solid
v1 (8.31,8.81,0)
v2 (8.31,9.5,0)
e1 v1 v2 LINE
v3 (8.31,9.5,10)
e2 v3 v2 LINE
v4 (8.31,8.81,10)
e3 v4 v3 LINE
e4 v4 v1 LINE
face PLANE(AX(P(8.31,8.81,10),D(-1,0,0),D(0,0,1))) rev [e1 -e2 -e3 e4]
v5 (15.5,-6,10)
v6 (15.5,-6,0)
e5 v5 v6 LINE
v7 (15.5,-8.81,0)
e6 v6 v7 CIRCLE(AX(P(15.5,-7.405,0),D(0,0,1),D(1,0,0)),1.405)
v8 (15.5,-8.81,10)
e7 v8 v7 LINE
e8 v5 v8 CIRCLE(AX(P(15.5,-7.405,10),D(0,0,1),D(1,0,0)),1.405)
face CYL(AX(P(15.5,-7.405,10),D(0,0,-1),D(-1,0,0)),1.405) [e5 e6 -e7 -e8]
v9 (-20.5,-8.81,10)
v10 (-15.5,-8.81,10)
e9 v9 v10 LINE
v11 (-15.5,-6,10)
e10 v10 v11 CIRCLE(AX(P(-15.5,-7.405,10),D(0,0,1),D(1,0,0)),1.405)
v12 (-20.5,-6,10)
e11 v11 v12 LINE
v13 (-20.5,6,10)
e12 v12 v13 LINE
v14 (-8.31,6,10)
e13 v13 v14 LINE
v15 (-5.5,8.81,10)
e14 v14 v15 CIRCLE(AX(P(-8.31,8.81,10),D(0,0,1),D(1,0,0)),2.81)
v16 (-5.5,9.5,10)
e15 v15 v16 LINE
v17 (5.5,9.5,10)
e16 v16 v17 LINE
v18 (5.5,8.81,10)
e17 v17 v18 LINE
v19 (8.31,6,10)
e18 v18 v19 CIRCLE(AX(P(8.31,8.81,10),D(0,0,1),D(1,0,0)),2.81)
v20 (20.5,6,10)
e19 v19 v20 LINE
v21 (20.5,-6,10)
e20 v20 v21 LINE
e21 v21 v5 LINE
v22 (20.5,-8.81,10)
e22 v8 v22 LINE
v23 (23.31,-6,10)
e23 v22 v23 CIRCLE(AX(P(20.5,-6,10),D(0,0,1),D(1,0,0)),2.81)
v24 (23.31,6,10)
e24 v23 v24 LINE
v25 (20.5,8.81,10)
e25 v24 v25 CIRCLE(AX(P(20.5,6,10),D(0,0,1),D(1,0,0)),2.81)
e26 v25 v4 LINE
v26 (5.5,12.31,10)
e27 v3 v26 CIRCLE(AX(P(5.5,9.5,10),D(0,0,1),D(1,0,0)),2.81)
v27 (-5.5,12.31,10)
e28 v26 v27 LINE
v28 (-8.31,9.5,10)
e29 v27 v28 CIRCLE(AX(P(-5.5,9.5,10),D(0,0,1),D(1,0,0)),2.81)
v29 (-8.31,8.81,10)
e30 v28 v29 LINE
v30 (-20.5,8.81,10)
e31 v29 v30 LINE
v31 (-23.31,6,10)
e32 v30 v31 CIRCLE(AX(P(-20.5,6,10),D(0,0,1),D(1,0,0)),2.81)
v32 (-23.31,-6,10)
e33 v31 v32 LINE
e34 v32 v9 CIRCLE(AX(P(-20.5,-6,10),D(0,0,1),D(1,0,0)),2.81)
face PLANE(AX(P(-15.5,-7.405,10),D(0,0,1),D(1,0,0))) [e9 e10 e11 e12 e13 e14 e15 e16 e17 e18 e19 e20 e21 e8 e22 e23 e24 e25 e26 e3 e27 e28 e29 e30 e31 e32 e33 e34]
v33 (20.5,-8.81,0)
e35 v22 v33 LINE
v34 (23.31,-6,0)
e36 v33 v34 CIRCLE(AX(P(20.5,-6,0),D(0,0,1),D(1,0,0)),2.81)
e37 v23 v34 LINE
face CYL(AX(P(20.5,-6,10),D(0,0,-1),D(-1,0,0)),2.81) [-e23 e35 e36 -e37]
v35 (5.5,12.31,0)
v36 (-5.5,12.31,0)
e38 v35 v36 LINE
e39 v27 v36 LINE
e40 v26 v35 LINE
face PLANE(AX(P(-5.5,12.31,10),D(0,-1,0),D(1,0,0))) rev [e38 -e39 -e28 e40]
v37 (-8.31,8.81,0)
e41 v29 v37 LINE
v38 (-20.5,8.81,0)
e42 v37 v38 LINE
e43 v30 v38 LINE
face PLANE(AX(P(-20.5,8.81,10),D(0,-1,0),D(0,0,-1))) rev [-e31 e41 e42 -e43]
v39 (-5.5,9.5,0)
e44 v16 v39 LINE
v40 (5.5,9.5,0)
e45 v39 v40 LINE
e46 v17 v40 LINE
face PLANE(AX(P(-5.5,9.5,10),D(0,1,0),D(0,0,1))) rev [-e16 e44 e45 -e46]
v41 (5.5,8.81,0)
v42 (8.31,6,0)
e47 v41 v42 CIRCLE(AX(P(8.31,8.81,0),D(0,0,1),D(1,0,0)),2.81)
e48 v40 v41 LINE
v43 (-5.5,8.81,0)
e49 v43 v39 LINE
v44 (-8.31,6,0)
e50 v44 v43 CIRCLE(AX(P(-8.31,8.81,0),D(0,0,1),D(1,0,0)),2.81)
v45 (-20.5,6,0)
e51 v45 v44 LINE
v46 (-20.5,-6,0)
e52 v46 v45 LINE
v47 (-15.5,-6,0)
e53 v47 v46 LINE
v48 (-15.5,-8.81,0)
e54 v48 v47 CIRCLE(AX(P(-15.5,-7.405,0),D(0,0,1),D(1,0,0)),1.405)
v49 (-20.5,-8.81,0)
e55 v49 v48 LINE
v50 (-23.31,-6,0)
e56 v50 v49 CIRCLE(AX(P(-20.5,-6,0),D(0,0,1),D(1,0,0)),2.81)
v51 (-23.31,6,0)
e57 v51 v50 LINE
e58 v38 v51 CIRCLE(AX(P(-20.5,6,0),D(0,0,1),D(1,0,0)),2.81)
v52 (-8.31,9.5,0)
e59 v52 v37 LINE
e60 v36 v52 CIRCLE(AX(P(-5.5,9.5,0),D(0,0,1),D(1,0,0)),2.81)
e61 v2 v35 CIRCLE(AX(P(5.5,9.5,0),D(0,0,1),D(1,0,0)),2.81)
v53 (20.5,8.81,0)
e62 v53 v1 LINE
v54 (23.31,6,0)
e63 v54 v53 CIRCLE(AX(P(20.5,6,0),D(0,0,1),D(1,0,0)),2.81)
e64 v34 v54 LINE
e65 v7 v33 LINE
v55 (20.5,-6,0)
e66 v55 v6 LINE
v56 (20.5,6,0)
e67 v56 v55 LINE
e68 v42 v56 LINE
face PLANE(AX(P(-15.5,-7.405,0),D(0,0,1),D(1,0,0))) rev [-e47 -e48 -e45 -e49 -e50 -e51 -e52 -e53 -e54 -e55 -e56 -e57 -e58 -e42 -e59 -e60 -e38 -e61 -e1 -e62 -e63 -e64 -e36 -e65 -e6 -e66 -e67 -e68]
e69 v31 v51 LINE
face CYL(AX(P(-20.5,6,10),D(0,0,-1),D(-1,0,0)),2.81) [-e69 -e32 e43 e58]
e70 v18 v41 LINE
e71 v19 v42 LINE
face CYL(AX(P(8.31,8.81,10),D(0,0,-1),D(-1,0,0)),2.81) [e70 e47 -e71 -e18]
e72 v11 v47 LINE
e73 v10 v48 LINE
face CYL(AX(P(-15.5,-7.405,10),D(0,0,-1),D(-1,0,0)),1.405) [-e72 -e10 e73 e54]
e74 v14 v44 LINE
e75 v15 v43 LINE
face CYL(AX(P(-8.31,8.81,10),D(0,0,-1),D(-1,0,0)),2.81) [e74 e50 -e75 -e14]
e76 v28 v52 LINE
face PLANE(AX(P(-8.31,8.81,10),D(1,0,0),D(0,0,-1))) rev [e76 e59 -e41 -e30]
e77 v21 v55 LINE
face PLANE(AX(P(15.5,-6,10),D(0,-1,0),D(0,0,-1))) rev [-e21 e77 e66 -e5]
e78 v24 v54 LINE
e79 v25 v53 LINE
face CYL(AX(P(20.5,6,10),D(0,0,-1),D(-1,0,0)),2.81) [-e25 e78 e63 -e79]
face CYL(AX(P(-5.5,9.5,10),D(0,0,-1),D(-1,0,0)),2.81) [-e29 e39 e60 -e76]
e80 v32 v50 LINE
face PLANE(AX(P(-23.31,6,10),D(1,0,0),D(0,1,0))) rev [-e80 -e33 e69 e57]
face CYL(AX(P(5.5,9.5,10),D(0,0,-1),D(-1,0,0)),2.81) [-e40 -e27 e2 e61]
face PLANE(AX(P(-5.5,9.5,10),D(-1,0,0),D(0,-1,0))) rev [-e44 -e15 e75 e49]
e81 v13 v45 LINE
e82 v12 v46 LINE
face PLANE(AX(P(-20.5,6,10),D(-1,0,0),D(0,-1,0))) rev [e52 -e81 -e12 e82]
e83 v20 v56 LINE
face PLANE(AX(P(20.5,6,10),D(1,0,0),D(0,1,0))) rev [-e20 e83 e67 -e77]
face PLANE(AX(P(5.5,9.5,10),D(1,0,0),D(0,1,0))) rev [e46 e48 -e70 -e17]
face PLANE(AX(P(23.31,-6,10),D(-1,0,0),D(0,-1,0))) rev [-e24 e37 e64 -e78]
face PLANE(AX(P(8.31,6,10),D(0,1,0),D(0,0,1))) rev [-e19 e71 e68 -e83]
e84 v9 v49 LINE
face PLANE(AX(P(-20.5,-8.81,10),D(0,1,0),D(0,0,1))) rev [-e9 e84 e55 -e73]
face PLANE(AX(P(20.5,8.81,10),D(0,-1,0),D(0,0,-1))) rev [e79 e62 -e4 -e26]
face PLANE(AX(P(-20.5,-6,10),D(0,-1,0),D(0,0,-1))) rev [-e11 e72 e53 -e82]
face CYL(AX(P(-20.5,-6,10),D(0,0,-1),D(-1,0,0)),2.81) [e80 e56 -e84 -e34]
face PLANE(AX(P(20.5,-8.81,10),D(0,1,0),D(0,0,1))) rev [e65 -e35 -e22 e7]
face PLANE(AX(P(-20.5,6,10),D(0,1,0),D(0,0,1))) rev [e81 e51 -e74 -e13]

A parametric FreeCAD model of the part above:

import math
import FreeCAD as App
import Part
import Sketcher
from FreeCAD import Vector

doc = App.newDocument("Part")
body = doc.addObject("PartDesign::Body", "Body")

# Sketch on XY plane
sketch1 = body.newObject("Sketcher::SketchObject", "Sketch")
sketch1.AttachmentSupport = (doc.getObject("XY_Plane"), [""])
sketch1.MapMode = "FlatFace"
sketch1.addGeometry([
    Part.LineSegment(Vector(-15.5, -6, 0), Vector(-20.5, -6, 0)),  # 0
    Part.LineSegment(Vector(-20.5, -6, 0), Vector(-20.5, 6, 0)),  # 1
    Part.LineSegment(Vector(-20.5, 6, 0), Vector(-8.3, 6, 0)),  # 2
    Part.ArcOfCircle(Part.Circle(Vector(-8.3, 8.8, 0), Vector(0, 0, 1), 2.8), math.radians(-90), math.radians(0)),  # 3
    Part.LineSegment(Vector(-5.5, 8.8, 0), Vector(-5.5, 9.5, 0)),  # 4
    Part.LineSegment(Vector(-5.5, 9.5, 0), Vector(5.5, 9.5, 0)),  # 5
    Part.LineSegment(Vector(5.5, 9.5, 0), Vector(5.5, 8.8, 0)),  # 6
    Part.ArcOfCircle(Part.Circle(Vector(8.3, 8.8, 0), Vector(0, 0, 1), 2.8), math.radians(180), math.radians(270)),  # 7
    Part.LineSegment(Vector(8.3, 6, 0), Vector(20.5, 6, 0)),  # 8
    Part.LineSegment(Vector(20.5, 6, 0), Vector(20.5, -6, 0)),  # 9
    Part.LineSegment(Vector(20.5, -6, 0), Vector(15.5, -6, 0)),  # 10
    Part.ArcOfCircle(Part.Circle(Vector(15.5, -7.4, 0), Vector(0, 0, 1), 1.4), math.radians(90), math.radians(270)),  # 11
    Part.LineSegment(Vector(15.5, -8.8, 0), Vector(20.5, -8.8, 0)),  # 12
    Part.ArcOfCircle(Part.Circle(Vector(20.5, -6, 0), Vector(0, 0, 1), 2.8), math.radians(-90), math.radians(0)),  # 13
    Part.LineSegment(Vector(23.3, -6, 0), Vector(23.3, 6, 0)),  # 14
    Part.ArcOfCircle(Part.Circle(Vector(20.5, 6, 0), Vector(0, 0, 1), 2.8), math.radians(0), math.radians(90)),  # 15
    Part.LineSegment(Vector(20.5, 8.8, 0), Vector(8.3, 8.8, 0)),  # 16
    Part.LineSegment(Vector(8.3, 8.8, 0), Vector(8.3, 9.5, 0)),  # 17
    Part.ArcOfCircle(Part.Circle(Vector(5.5, 9.5, 0), Vector(0, 0, 1), 2.8), math.radians(0), math.radians(90)),  # 18
    Part.LineSegment(Vector(5.5, 12.3, 0), Vector(-5.5, 12.3, 0)),  # 19
    Part.ArcOfCircle(Part.Circle(Vector(-5.5, 9.5, 0), Vector(0, 0, 1), 2.8), math.radians(90), math.radians(180)),  # 20
    Part.LineSegment(Vector(-8.3, 9.5, 0), Vector(-8.3, 8.8, 0)),  # 21
    Part.LineSegment(Vector(-8.3, 8.8, 0), Vector(-20.5, 8.8, 0)),  # 22
    Part.ArcOfCircle(Part.Circle(Vector(-20.5, 6, 0), Vector(0, 0, 1), 2.8), math.radians(90), math.radians(180)),  # 23
    Part.LineSegment(Vector(-23.3, 6, 0), Vector(-23.3, -6, 0)),  # 24
    Part.ArcOfCircle(Part.Circle(Vector(-20.5, -6, 0), Vector(0, 0, 1), 2.8), math.radians(180), math.radians(270)),  # 25
    Part.LineSegment(Vector(-20.5, -8.8, 0), Vector(-15.5, -8.8, 0)),  # 26
    Part.ArcOfCircle(Part.Circle(Vector(-15.5, -7.4, 0), Vector(0, 0, 1), 1.4), math.radians(-90), math.radians(90)),  # 27
], False)
sketch1.addConstraint([
    Sketcher.Constraint("Coincident", 0, 2, 1, 1),
    Sketcher.Constraint("Coincident", 1, 2, 2, 1),
    Sketcher.Constraint("Tangent", 2, 2, 3, 1),
    Sketcher.Constraint("Tangent", 3, 2, 4, 1),
    Sketcher.Constraint("Coincident", 4, 2, 5, 1),
    Sketcher.Constraint("Coincident", 5, 2, 6, 1),
    Sketcher.Constraint("Tangent", 6, 2, 7, 1),
    Sketcher.Constraint("Tangent", 7, 2, 8, 1),
    Sketcher.Constraint("Coincident", 8, 2, 9, 1),
    Sketcher.Constraint("Coincident", 9, 2, 10, 1),
    Sketcher.Constraint("Tangent", 10, 2, 11, 1),
    Sketcher.Constraint("Tangent", 11, 2, 12, 1),
    Sketcher.Constraint("Tangent", 12, 2, 13, 1),
    Sketcher.Constraint("Tangent", 13, 2, 14, 1),
    Sketcher.Constraint("Tangent", 14, 2, 15, 1),
    Sketcher.Constraint("Tangent", 15, 2, 16, 1),
    Sketcher.Constraint("Coincident", 16, 2, 17, 1),
    Sketcher.Constraint("Tangent", 17, 2, 18, 1),
    Sketcher.Constraint("Tangent", 18, 2, 19, 1),
    Sketcher.Constraint("Tangent", 19, 2, 20, 1),
    Sketcher.Constraint("Tangent", 20, 2, 21, 1),
    Sketcher.Constraint("Coincident", 21, 2, 22, 1),
    Sketcher.Constraint("Tangent", 22, 2, 23, 1),
    Sketcher.Constraint("Tangent", 23, 2, 24, 1),
    Sketcher.Constraint("Tangent", 24, 2, 25, 1),
    Sketcher.Constraint("Tangent", 25, 2, 26, 1),
    Sketcher.Constraint("Tangent", 26, 2, 27, 1),
    Sketcher.Constraint("Tangent", 27, 2, 0, 1),
    Sketcher.Constraint("Horizontal", 0),
    Sketcher.Constraint("Vertical", 1),
    Sketcher.Constraint("Horizontal", 2),
    Sketcher.Constraint("Vertical", 4),
    Sketcher.Constraint("Horizontal", 5),
    Sketcher.Constraint("Vertical", 6),
    Sketcher.Constraint("Horizontal", 8),
    Sketcher.Constraint("Vertical", 9),
    Sketcher.Constraint("Horizontal", 10),
    Sketcher.Constraint("Horizontal", 12),
    Sketcher.Constraint("Vertical", 14),
    Sketcher.Constraint("Horizontal", 16),
    Sketcher.Constraint("Vertical", 17),
    Sketcher.Constraint("Horizontal", 19),
    Sketcher.Constraint("Vertical", 21),
    Sketcher.Constraint("Horizontal", 22),
    Sketcher.Constraint("Vertical", 24),
    Sketcher.Constraint("Horizontal", 26),
    Sketcher.Constraint("Coincident", 0, 2, 25, 3),
    Sketcher.Constraint("Coincident", 1, 2, 23, 3),
    Sketcher.Constraint("Coincident", 4, 2, 20, 3),
    Sketcher.Constraint("Coincident", 5, 2, 18, 3),
    Sketcher.Constraint("Coincident", 8, 2, 15, 3),
    Sketcher.Constraint("Coincident", 9, 2, 13, 3),
    Sketcher.Constraint("Coincident", 16, 2, 7, 3),
    Sketcher.Constraint("Coincident", 21, 2, 3, 3),
    Sketcher.Constraint("Symmetric", 13, 3, 23, 3, -1, 1),
    Sketcher.Constraint("Symmetric", 3, 3, 7, 3, -2),
    Sketcher.Constraint("Symmetric", 11, 3, 27, 3, -2),
    Sketcher.Constraint("DistanceX", 0, 2, 0, 1, 5.0),
    Sketcher.Constraint("DistanceX", 5, 1, 5, 2, 11.0),
    Sketcher.Constraint("DistanceY", 1, 1, 1, 2, 12.0),
    Sketcher.Constraint("Radius", 3, 2.81),
    Sketcher.Constraint("DistanceX", 18, 3, 15, 3, 15.0),
    Sketcher.Constraint("DistanceY", 4, 1, 4, 2, 0.69),
])
pad1 = body.newObject("PartDesign::Pad", "Pad")
pad1.Profile = sketch1
pad1.Length = 10

doc.recompute()
